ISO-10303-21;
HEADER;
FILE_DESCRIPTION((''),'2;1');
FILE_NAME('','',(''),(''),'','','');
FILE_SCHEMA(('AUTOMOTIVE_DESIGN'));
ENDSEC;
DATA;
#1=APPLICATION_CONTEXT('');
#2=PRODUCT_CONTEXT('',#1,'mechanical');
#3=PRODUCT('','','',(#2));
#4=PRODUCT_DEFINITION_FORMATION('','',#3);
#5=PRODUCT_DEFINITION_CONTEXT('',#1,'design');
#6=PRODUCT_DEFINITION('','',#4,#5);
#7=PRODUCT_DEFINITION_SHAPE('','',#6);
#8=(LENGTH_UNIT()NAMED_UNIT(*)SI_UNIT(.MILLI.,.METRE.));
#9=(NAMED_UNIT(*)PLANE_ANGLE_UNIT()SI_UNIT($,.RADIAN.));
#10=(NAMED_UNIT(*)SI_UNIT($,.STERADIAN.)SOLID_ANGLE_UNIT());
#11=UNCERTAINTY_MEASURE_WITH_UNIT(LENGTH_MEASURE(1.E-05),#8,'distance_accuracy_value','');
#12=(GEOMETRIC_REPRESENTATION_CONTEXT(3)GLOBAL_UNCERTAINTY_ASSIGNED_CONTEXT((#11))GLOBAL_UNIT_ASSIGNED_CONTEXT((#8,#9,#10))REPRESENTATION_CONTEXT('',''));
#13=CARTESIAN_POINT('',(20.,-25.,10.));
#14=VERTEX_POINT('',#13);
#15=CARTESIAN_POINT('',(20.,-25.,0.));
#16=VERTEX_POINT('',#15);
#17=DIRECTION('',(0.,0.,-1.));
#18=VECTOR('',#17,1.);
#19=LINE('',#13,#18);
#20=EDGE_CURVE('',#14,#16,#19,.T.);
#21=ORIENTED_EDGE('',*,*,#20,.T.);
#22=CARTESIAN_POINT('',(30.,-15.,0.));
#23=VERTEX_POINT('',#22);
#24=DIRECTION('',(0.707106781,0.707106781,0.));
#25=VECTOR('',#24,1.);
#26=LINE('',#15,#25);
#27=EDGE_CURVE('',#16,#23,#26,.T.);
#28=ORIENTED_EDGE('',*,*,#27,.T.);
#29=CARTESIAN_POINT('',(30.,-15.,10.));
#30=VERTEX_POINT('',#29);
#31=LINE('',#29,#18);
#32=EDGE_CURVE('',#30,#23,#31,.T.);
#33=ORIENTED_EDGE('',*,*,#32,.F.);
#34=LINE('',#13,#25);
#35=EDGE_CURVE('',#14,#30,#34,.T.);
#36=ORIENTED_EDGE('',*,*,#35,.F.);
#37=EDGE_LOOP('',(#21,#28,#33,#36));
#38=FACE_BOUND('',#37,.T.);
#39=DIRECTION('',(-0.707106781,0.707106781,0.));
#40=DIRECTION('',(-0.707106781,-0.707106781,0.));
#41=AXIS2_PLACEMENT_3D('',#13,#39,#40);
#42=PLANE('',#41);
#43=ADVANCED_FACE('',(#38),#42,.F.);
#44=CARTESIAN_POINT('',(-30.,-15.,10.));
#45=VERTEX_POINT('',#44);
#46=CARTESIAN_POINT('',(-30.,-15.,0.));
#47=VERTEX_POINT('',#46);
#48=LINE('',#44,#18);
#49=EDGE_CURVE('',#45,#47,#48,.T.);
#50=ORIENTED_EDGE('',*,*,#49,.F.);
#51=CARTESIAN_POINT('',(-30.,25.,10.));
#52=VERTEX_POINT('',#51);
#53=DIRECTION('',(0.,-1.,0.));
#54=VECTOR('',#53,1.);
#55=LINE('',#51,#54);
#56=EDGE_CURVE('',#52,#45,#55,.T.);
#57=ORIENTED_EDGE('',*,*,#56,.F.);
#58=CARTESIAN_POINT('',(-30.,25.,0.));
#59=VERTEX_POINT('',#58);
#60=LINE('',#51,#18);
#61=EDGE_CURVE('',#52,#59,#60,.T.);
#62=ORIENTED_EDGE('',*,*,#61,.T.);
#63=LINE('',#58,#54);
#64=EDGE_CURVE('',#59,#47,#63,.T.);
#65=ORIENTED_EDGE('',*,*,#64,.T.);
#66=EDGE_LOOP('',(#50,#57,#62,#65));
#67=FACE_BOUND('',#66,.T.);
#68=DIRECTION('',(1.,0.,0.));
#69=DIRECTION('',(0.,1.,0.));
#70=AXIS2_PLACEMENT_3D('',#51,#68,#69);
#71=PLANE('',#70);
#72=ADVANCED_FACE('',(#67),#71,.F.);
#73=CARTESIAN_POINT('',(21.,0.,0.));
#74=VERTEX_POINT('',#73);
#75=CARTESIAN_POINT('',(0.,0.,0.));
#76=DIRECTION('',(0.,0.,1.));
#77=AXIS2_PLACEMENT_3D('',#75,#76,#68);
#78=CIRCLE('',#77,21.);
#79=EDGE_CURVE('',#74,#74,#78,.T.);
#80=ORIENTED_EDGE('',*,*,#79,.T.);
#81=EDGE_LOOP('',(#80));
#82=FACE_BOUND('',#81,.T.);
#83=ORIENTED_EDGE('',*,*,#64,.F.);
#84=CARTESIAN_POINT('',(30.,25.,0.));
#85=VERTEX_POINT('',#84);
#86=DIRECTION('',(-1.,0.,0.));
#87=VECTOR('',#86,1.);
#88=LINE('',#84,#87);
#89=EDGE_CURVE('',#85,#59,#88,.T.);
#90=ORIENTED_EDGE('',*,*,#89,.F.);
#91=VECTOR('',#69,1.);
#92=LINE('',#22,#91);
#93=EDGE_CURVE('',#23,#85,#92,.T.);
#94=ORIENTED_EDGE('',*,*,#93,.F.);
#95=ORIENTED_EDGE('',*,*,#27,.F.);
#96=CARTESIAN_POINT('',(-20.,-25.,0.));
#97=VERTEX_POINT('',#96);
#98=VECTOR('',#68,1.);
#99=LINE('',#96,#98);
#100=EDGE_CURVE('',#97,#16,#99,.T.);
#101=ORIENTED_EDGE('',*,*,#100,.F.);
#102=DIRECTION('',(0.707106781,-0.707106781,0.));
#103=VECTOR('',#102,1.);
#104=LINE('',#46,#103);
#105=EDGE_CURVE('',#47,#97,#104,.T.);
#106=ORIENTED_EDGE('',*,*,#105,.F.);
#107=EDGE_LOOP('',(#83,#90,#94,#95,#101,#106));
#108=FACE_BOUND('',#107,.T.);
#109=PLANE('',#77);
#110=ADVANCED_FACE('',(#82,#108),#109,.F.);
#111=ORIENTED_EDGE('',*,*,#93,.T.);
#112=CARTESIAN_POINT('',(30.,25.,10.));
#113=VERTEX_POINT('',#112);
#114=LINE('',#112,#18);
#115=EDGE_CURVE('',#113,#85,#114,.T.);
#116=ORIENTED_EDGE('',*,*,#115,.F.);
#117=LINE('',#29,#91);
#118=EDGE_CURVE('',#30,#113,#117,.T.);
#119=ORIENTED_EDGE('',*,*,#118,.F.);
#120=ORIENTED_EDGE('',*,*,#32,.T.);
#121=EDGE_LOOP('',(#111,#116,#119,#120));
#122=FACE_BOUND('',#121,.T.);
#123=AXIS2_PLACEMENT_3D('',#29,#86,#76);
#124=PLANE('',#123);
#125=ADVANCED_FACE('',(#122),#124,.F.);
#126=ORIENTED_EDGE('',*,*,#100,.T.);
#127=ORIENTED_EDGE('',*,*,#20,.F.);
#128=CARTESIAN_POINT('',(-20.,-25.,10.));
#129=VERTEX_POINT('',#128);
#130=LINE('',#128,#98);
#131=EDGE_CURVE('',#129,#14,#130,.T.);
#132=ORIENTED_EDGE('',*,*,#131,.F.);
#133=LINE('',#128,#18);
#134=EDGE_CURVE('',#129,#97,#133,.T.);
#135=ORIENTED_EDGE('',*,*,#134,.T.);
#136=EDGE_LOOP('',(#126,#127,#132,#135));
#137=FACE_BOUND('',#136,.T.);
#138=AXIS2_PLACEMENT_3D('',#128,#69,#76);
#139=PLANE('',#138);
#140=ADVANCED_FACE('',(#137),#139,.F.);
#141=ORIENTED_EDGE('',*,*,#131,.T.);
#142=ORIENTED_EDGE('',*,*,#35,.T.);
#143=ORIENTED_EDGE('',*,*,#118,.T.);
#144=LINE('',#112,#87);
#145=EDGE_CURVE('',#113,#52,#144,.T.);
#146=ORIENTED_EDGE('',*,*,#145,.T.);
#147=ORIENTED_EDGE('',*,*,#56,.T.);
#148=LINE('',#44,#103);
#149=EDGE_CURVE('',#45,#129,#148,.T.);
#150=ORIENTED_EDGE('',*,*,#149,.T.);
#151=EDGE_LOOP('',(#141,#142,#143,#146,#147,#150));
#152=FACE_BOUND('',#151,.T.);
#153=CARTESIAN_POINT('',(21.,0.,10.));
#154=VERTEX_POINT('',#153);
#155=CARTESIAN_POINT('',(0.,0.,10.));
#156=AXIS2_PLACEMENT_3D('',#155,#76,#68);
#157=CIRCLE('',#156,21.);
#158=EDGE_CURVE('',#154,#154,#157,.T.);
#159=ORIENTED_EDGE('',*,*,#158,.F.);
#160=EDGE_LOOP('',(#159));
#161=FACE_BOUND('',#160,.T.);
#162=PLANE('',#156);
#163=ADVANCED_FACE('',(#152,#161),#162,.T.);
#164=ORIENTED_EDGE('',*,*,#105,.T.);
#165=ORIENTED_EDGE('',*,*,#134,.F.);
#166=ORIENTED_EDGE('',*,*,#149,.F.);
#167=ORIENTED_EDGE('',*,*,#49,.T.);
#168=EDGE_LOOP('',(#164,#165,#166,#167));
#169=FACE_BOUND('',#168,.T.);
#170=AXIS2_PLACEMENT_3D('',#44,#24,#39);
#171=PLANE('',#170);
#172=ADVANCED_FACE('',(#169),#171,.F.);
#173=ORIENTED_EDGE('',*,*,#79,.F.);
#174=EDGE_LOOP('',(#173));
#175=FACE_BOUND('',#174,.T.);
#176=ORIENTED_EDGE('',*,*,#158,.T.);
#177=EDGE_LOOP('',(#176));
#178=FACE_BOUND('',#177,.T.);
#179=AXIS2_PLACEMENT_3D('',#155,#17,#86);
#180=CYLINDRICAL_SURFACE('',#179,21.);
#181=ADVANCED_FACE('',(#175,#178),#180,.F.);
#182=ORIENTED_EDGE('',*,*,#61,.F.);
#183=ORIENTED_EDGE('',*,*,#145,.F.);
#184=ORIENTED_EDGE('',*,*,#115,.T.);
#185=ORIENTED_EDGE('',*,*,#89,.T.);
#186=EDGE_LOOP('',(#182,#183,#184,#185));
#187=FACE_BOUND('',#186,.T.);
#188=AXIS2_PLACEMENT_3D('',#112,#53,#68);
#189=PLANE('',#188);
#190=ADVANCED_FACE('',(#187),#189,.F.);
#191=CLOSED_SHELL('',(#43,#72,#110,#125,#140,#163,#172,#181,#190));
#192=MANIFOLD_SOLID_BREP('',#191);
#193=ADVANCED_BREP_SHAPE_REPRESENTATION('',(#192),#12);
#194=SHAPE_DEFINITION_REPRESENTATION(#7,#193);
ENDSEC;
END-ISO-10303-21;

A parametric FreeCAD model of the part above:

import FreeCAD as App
import Part
import Sketcher

V = App.Vector
Q = App.Units.Quantity


def add_polygon(sketch, points):
    """Adds a closed chain of lines whose ends are joined by coincident constraints."""
    first, n = sketch.GeometryCount, len(points)
    for a, b in zip(points, points[1:] + points[:1]):
        sketch.addGeometry(Part.LineSegment(App.Vector(*a, 0), App.Vector(*b, 0)), False)
    for i in range(n):
        sketch.addConstraint(Sketcher.Constraint("Coincident", first + i, 2, first + (i + 1) % n, 1))

doc = App.newDocument("Part")
body = doc.addObject("PartDesign::Body", "Body")

sketch1 = body.newObject("Sketcher::SketchObject", "Sketch")
sketch1.AttachmentSupport = (doc.getObject("XY_Plane"), [""])
sketch1.MapMode = "FlatFace"
add_polygon(sketch1, [(-30, 25), (-30, -15), (-20, -25), (20, -25), (30, -15), (30, 25)])
sketch1.addGeometry(Part.Circle(V(0, 0, 0), V(0, 0, 1), 21), False)
sketch1.addConstraint([
    Sketcher.Constraint("Vertical", 0),
    Sketcher.Constraint("Horizontal", 2),
    Sketcher.Constraint("Vertical", 4),
    Sketcher.Constraint("Horizontal", 5),
    Sketcher.Constraint("Coincident", 6, 3, -1, 1),
    Sketcher.Constraint("Symmetric", 0, 2, 3, 2, -2),
    Sketcher.Constraint("Perpendicular", 1, 3),
    Sketcher.Constraint("Equal", 2, 0),
    Sketcher.Constraint("Equal", 1, 3),
    Sketcher.Constraint("Diameter", 6, Q("42 mm")),
    Sketcher.Constraint("DistanceX", 2, 1, 2, 2, Q("40 mm")),
    Sketcher.Constraint("DistanceX", 5, 2, 5, 1, Q("60 mm")),
    Sketcher.Constraint("DistanceY", 0, 2, -1, 1, Q("15 mm")),
])
pad1 = body.newObject("PartDesign::Pad", "Pad")
pad1.Profile = sketch1
pad1.Length = 10

doc.recompute()
